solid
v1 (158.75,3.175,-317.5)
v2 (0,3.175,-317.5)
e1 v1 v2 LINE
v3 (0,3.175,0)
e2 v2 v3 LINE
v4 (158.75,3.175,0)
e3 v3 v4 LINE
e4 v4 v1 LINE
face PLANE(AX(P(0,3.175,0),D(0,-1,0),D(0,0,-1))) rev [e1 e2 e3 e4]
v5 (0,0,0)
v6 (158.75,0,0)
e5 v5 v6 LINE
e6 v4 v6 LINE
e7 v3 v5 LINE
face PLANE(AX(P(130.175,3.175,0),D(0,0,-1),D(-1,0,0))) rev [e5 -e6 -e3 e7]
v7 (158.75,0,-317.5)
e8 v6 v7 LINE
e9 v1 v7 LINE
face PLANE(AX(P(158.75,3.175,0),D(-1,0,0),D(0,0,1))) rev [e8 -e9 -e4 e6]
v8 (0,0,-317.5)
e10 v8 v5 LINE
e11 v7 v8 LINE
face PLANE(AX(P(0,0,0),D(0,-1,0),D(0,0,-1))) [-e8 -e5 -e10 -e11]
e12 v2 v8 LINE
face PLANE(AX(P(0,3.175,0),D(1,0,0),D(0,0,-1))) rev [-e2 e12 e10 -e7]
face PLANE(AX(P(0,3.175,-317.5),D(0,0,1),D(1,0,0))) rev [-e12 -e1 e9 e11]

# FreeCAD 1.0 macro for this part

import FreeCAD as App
import Part
import Sketcher

V = App.Vector
Q = App.Units.Quantity

doc = App.newDocument("Part")
params = doc.addObject("Spreadsheet::Sheet", "Params")
for row, (alias, value) in enumerate([
    ("sketch1_height", "12.5 in"),
    ("sketch1_width", "6.25 in"),
    ("pad1_length", "0.125 in"),
], start=1):
    params.set(f"A{row}", alias)
    params.set(f"B{row}", "=" + value)
    params.setAlias(f"B{row}", alias)

body = doc.addObject("PartDesign::Body", "Body")

# Sketch on XZ plane
sketch1 = body.newObject("Sketcher::SketchObject", "Sketch")
sketch1.AttachmentSupport = (doc.getObject("XZ_Plane"), [""])
sketch1.MapMode = "FlatFace"
sketch1.addGeometry([
    Part.LineSegment(V(159, 0, 0), V(159, -318, 0)),
    Part.LineSegment(V(159, -318, 0), V(0, -318, 0)),
    Part.LineSegment(V(0, -318, 0), V(0, 0, 0)),
    Part.LineSegment(V(0, 0, 0), V(159, 0, 0)),
], False)
sketch1.addConstraint([
    Sketcher.Constraint("Coincident", 0, 2, 1, 1),
    Sketcher.Constraint("Coincident", 1, 2, 2, 1),
    Sketcher.Constraint("Coincident", 2, 2, 3, 1),
    Sketcher.Constraint("Coincident", 3, 2, 0, 1),
    Sketcher.Constraint("Vertical", 0),
    Sketcher.Constraint("Horizontal", 1),
    Sketcher.Constraint("Vertical", 2),
    Sketcher.Constraint("Horizontal", 3),
    Sketcher.Constraint("Coincident", 2, 2, -1, 1),
    Sketcher.Constraint("DistanceY", 0, 2, 0, 1, Q("12.5 in")),
    Sketcher.Constraint("DistanceX", 1, 2, 1, 1, Q("6.25 in")),
])
sketch1.setExpression("Constraints[9]", "Params.sketch1_height")
sketch1.setExpression("Constraints[10]", "Params.sketch1_width")
pad1 = body.newObject("PartDesign::Pad", "Pad")
pad1.Profile = sketch1
pad1.setExpression("Length", "Params.pad1_length")
pad1.Reversed = True

doc.recompute()
